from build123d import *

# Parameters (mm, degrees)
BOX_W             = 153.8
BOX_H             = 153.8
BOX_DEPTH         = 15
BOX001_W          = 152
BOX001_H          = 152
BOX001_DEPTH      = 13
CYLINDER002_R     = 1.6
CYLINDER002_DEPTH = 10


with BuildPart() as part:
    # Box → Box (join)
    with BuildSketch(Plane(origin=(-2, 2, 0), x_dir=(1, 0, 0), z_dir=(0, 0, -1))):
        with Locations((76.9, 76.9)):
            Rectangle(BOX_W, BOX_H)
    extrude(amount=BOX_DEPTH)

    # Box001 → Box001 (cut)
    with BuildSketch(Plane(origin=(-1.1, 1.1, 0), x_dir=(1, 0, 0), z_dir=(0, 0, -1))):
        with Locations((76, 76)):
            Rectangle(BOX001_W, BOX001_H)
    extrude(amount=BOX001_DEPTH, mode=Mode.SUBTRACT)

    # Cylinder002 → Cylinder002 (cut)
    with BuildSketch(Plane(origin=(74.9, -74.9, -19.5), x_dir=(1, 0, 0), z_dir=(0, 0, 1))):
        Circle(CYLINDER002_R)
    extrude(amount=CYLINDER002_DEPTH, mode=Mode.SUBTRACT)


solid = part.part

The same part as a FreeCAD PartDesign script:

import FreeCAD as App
import Part
import Sketcher


def add_polygon(sketch, points):
    """Adds a closed chain of lines whose ends are joined by coincident constraints."""
    first, n = sketch.GeometryCount, len(points)
    for a, b in zip(points, points[1:] + points[:1]):
        sketch.addGeometry(Part.LineSegment(App.Vector(*a, 0), App.Vector(*b, 0)), False)
    for i in range(n):
        sketch.addConstraint(Sketcher.Constraint("Coincident", first + i, 2, first + (i + 1) % n, 1))

doc = App.newDocument("Part")
body = doc.addObject("PartDesign::Body", "Body")

# Sketch on XY plane
sketch1 = doc.addObject("Sketcher::SketchObject", "Sketch")
body.addObject(sketch1)
sketch1.AttachmentSupport = (doc.XY_Plane, [""])
sketch1.MapMode = "FlatFace"
add_polygon(sketch1, [(-2, -151.8), (-2, 2), (151.8, 2), (151.8, -151.8)])  # lines 0-3
sketch1.addConstraint([
    Sketcher.Constraint("Vertical", 0),
    Sketcher.Constraint("Horizontal", 1),
    Sketcher.Constraint("Vertical", 2),
    Sketcher.Constraint("Horizontal", 3),
    Sketcher.Constraint("Equal", 3, 0),
    Sketcher.Constraint("DistanceX", 1, 1, 1, 2, 153.8),
    Sketcher.Constraint("DistanceX", 0, 2, -1, 1, 2.0),
    Sketcher.Constraint("DistanceY", -1, 1, 0, 2, 2.0),
])
pad1 = doc.addObject("PartDesign::Pad", "Pad")
body.addObject(pad1)
pad1.Profile = sketch1
pad1.Length = 15
pad1.Reversed = True

# Sketch on XY plane
sketch2 = doc.addObject("Sketcher::SketchObject", "Sketch001")
body.addObject(sketch2)
sketch2.AttachmentSupport = (doc.XY_Plane, [""])
sketch2.MapMode = "FlatFace"
add_polygon(sketch2, [(-1.1, -150.9), (-1.1, 1.1), (150.9, 1.1), (150.9, -150.9)])  # lines 0-3
sketch2.addConstraint([
    Sketcher.Constraint("Vertical", 0),
    Sketcher.Constraint("Horizontal", 1),
    Sketcher.Constraint("Vertical", 2),
    Sketcher.Constraint("Horizontal", 3),
    Sketcher.Constraint("Equal", 3, 0),
    Sketcher.Constraint("DistanceX", 1, 1, 1, 2, 152.0),
    Sketcher.Constraint("DistanceX", 0, 2, -1, 1, 1.1),
    Sketcher.Constraint("DistanceY", -1, 1, 0, 2, 1.1),
])
pocket1 = doc.addObject("PartDesign::Pocket", "Pocket")
body.addObject(pocket1)
pocket1.Profile = sketch2
pocket1.Length = 13

# Sketch on XY plane
sketch3 = doc.addObject("Sketcher::SketchObject", "Sketch002")
body.addObject(sketch3)
sketch3.AttachmentSupport = (doc.XY_Plane, [""])
sketch3.MapMode = "FlatFace"
sketch3.AttachmentOffset = App.Placement(App.Vector(0, 0, -19.5), App.Rotation())
sketch3.addGeometry(Part.Circle(App.Vector(74.9, -74.9, 0), App.Vector(0, 0, 1), 1.6), False)
sketch3.addConstraint([
    Sketcher.Constraint("Diameter", 0, 3.2),
    Sketcher.Constraint("DistanceX", -1, 1, 0, 3, 74.9),
    Sketcher.Constraint("DistanceY", 0, 3, -1, 1, 74.9),
])
pocket2 = doc.addObject("PartDesign::Pocket", "Pocket001")
body.addObject(pocket2)
pocket2.Profile = sketch3
pocket2.Length = 10
pocket2.Reversed = True

doc.recompute()
